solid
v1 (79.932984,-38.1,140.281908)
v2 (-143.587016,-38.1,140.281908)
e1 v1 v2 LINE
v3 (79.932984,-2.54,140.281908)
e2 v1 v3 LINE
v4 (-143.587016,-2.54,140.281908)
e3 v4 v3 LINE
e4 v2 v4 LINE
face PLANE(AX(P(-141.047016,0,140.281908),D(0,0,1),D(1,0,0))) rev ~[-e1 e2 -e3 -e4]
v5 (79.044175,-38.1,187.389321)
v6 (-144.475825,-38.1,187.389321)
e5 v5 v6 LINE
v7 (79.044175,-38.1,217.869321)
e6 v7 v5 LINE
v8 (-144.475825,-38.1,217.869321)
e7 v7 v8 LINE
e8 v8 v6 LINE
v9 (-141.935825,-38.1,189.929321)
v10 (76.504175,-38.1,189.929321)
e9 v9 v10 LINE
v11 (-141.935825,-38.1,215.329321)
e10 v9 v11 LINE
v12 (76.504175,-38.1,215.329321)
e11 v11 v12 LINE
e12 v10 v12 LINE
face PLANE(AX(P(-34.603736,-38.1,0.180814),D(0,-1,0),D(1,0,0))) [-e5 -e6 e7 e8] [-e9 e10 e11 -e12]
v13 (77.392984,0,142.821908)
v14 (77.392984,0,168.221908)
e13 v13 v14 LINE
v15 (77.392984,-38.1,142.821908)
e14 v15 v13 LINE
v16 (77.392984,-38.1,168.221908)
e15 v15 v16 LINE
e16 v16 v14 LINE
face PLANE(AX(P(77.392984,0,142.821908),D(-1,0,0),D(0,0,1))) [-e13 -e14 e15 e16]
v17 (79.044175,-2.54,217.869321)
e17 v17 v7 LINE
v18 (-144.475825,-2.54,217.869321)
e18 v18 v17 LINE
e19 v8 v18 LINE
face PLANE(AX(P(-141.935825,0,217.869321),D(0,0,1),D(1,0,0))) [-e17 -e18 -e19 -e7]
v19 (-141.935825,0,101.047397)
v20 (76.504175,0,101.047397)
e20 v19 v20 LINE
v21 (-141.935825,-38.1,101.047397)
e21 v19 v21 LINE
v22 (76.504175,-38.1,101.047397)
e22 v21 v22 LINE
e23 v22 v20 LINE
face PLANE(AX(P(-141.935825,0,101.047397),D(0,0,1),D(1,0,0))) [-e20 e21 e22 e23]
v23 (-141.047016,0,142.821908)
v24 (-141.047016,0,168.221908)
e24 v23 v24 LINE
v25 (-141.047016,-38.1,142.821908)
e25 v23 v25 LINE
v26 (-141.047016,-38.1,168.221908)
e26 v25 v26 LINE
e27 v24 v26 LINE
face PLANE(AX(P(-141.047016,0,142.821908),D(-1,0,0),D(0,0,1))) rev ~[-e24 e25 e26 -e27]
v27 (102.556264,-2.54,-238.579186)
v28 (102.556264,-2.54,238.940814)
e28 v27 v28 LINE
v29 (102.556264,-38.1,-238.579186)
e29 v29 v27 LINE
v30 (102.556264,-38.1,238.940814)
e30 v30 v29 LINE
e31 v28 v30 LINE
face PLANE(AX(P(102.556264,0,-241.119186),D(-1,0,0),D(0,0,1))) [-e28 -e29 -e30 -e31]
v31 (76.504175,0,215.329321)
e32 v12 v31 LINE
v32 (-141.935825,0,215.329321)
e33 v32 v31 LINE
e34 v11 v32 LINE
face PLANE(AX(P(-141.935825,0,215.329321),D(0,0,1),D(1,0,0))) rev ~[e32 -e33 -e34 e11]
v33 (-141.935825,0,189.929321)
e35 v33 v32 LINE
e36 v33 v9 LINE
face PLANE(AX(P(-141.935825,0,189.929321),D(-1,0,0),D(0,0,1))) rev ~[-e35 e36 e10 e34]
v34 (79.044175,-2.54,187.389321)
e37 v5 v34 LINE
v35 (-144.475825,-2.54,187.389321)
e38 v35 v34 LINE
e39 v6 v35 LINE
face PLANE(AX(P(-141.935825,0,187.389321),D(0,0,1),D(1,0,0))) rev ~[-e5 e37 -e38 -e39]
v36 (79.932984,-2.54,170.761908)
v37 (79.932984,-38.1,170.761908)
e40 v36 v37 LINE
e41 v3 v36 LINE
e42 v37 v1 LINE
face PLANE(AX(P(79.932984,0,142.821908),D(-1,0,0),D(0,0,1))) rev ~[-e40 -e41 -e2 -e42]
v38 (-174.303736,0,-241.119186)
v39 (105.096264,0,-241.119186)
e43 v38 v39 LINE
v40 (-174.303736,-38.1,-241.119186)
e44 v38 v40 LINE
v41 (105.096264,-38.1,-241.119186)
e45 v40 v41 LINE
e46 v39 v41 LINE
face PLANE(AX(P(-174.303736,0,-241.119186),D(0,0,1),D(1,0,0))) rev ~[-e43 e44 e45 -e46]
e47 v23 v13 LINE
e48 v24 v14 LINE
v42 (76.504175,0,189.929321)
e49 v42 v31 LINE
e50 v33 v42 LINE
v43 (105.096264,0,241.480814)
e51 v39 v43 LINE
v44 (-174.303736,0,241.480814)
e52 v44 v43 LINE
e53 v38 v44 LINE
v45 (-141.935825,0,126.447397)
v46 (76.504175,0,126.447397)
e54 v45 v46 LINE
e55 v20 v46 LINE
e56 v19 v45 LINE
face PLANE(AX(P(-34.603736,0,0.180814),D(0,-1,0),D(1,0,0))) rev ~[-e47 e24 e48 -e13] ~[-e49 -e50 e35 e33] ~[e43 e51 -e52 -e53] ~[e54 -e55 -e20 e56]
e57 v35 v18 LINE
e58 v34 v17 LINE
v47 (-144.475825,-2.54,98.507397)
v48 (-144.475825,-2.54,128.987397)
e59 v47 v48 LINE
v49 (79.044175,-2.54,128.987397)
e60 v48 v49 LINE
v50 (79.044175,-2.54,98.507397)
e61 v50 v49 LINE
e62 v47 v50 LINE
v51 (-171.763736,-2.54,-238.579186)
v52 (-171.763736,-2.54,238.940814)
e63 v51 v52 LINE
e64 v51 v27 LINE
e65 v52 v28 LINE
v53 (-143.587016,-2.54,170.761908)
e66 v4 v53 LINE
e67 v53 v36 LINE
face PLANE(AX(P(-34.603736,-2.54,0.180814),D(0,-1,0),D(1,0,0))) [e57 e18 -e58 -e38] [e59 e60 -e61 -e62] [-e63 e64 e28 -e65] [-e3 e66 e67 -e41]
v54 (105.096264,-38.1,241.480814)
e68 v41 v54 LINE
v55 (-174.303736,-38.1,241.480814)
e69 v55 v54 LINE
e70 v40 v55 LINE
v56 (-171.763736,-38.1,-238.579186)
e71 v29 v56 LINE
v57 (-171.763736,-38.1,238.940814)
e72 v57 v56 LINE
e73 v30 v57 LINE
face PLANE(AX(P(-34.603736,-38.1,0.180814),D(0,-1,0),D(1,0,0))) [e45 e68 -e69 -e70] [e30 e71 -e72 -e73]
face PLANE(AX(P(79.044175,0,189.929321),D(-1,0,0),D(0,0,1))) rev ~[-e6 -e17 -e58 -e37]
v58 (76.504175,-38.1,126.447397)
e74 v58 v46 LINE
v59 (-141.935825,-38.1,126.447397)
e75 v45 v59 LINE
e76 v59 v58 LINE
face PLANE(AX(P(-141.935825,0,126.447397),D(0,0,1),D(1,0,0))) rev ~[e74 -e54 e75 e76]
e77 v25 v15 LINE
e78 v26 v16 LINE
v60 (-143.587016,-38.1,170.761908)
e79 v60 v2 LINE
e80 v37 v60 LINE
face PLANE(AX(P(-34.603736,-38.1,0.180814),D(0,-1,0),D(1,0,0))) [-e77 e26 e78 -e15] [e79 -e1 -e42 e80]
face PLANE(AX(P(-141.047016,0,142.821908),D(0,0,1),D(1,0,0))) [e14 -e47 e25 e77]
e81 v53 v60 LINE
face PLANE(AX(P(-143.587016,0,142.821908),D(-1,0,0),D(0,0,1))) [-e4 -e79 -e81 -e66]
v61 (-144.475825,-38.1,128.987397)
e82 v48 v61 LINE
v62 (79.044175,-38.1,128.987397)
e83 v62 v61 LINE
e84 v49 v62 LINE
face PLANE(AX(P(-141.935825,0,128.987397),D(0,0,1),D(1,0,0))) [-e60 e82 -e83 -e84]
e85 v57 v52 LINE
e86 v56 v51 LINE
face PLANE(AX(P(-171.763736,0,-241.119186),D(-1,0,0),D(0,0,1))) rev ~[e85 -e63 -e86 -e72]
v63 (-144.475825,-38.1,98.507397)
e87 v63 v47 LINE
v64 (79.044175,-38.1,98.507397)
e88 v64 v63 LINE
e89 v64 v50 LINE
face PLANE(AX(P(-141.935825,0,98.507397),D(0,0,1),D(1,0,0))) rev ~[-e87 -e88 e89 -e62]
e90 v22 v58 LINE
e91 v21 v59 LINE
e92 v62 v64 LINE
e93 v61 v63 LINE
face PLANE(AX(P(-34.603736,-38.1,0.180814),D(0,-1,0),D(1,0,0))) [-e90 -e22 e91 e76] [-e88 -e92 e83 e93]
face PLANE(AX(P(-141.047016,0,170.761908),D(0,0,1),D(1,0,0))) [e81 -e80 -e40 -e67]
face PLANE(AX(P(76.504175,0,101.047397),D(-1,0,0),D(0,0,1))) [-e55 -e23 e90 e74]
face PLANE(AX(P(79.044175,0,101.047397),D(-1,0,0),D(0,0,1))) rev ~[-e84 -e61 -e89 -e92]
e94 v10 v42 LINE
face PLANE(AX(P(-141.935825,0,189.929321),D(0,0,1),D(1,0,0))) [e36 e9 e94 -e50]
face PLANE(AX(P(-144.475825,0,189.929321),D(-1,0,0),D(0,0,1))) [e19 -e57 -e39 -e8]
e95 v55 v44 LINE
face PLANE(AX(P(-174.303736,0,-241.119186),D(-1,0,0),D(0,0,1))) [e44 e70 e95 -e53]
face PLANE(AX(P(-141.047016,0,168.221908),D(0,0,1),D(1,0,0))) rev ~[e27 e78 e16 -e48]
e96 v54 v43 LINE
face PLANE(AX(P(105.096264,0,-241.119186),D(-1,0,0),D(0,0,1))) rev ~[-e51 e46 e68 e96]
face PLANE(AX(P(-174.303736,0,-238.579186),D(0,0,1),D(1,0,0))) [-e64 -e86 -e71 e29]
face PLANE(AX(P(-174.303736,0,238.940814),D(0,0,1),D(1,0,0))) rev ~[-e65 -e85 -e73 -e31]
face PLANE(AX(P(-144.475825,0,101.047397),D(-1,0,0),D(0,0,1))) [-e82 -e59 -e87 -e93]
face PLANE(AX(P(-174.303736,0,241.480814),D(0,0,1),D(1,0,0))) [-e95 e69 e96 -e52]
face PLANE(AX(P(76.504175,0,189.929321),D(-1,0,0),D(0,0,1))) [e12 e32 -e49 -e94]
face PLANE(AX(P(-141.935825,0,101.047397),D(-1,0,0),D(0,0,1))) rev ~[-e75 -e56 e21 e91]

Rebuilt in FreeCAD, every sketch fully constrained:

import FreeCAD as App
import Part
import Sketcher
Q = App.Units.Quantity


def faces_at(feature, points):
    """Names of the faces that lie closest to the given points."""
    faces = feature.Shape.Faces
    near = lambda p: min(range(len(faces)), key=lambda i: faces[i].distToShape(Part.Vertex(*p))[0])
    return sorted({f"Face{near(p) + 1}" for p in points})


def add_polygon(sketch, points):
    """Adds a closed chain of lines whose ends are joined by coincident constraints."""
    first, n = sketch.GeometryCount, len(points)
    for a, b in zip(points, points[1:] + points[:1]):
        sketch.addGeometry(Part.LineSegment(App.Vector(*a, 0), App.Vector(*b, 0)), False)
    for i in range(n):
        sketch.addConstraint(Sketcher.Constraint("Coincident", first + i, 2, first + (i + 1) % n, 1))

doc = App.newDocument("Part")
body = doc.addObject("PartDesign::Body", "Body")

sketch1 = body.newObject("Sketcher::SketchObject", "Sketch")
sketch1.AttachmentSupport = (doc.getObject("XZ_Plane"), [""])
sketch1.MapMode = "FlatFace"
add_polygon(sketch1, [(-174, 241), (-174, -241), (105, -241), (105, 241)])
add_polygon(sketch1, [(77, 101), (-142, 101), (-142, 126), (77, 126)])
add_polygon(sketch1, [(77, 143), (-141, 143), (-141, 168), (77, 168)])
add_polygon(sketch1, [(77, 190), (-142, 190), (-142, 215), (77, 215)])
sketch1.addConstraint(Sketcher.Constraint("Vertical", 0))
sketch1.addConstraint(Sketcher.Constraint("Horizontal", 1))
sketch1.addConstraint(Sketcher.Constraint("Vertical", 2))
sketch1.addConstraint(Sketcher.Constraint("Horizontal", 3))
sketch1.addConstraint(Sketcher.Constraint("Horizontal", 4))
sketch1.addConstraint(Sketcher.Constraint("Vertical", 5))
sketch1.addConstraint(Sketcher.Constraint("Horizontal", 6))
sketch1.addConstraint(Sketcher.Constraint("Vertical", 7))
sketch1.addConstraint(Sketcher.Constraint("Horizontal", 8))
sketch1.addConstraint(Sketcher.Constraint("Vertical", 9))
sketch1.addConstraint(Sketcher.Constraint("Horizontal", 10))
sketch1.addConstraint(Sketcher.Constraint("Vertical", 11))
sketch1.addConstraint(Sketcher.Constraint("Horizontal", 12))
sketch1.addConstraint(Sketcher.Constraint("Vertical", 13))
sketch1.addConstraint(Sketcher.Constraint("Horizontal", 14))
sketch1.addConstraint(Sketcher.Constraint("Vertical", 15))
sketch1.addConstraint(Sketcher.Constraint("Vertical", 5, 2, 12, 2))
sketch1.addConstraint(Sketcher.Constraint("Vertical", 7, 2, 14, 2))
sketch1.addConstraint(Sketcher.Constraint("Equal", 6, 8))
sketch1.addConstraint(Sketcher.Constraint("Equal", 7, 9))
sketch1.addConstraint(Sketcher.Constraint("Equal", 11, 13))
sketch1.addConstraint(Sketcher.Constraint("DistanceX", 1, 1, 1, 2, Q("11 in")))
sketch1.addConstraint(Sketcher.Constraint("DistanceY", 0, 2, 0, 1, Q("19 in")))
sketch1.addConstraint(Sketcher.Constraint("DistanceY", 5, 1, 5, 2, Q("1 in")))
sketch1.addConstraint(Sketcher.Constraint("DistanceX", 4, 2, 4, 1, Q("8.6 in")))
sketch1.addConstraint(Sketcher.Constraint("DistanceY", -1, 1, 12, 2, 189.929321))
sketch1.addConstraint(Sketcher.Constraint("DistanceX", 3, 2, 4, 2, 32.367911))
sketch1.addConstraint(Sketcher.Constraint("DistanceX", 5, 2, 8, 2, 0.88881))
sketch1.addConstraint(Sketcher.Constraint("DistanceY", 5, 2, 8, 2, 16.374511))
sketch1.addConstraint(Sketcher.Constraint("DistanceX", 0, 2, -1, 1, 174.303736))
sketch1.addConstraint(Sketcher.Constraint("DistanceY", 0, 2, -1, 1, 241.119186))
sketch1.addConstraint(Sketcher.Constraint("DistanceY", -1, 1, 4, 2, 101.047397))
pad1 = body.newObject("PartDesign::Pad", "Pad")
pad1.Profile = sketch1
pad1.Length = Q("1.5 in")

sketch2 = body.newObject("Sketcher::SketchObject", "Sketch001")
sketch2.AttachmentSupport = (doc.getObject("XZ_Plane"), [""])
sketch2.MapMode = "FlatFace"
add_polygon(sketch2, [(-174, 241), (-174, -241), (105, -241), (105, 241)])
add_polygon(sketch2, [(77, 101), (-142, 101), (-142, 126), (77, 126)])
add_polygon(sketch2, [(77, 143), (-141, 143), (-141, 168), (77, 168)])
add_polygon(sketch2, [(77, 190), (-142, 190), (-142, 215), (77, 215)])
sketch2.addConstraint(Sketcher.Constraint("Vertical", 0))
sketch2.addConstraint(Sketcher.Constraint("Horizontal", 1))
sketch2.addConstraint(Sketcher.Constraint("Vertical", 2))
sketch2.addConstraint(Sketcher.Constraint("Horizontal", 3))
sketch2.addConstraint(Sketcher.Constraint("Horizontal", 4))
sketch2.addConstraint(Sketcher.Constraint("Vertical", 5))
sketch2.addConstraint(Sketcher.Constraint("Horizontal", 6))
sketch2.addConstraint(Sketcher.Constraint("Vertical", 7))
sketch2.addConstraint(Sketcher.Constraint("Horizontal", 8))
sketch2.addConstraint(Sketcher.Constraint("Vertical", 9))
sketch2.addConstraint(Sketcher.Constraint("Horizontal", 10))
sketch2.addConstraint(Sketcher.Constraint("Vertical", 11))
sketch2.addConstraint(Sketcher.Constraint("Horizontal", 12))
sketch2.addConstraint(Sketcher.Constraint("Vertical", 13))
sketch2.addConstraint(Sketcher.Constraint("Horizontal", 14))
sketch2.addConstraint(Sketcher.Constraint("Vertical", 15))
sketch2.addConstraint(Sketcher.Constraint("Vertical", 5, 2, 12, 2))
sketch2.addConstraint(Sketcher.Constraint("Vertical", 7, 2, 14, 2))
sketch2.addConstraint(Sketcher.Constraint("Equal", 6, 8))
sketch2.addConstraint(Sketcher.Constraint("Equal", 7, 9))
sketch2.addConstraint(Sketcher.Constraint("Equal", 11, 13))
sketch2.addConstraint(Sketcher.Constraint("DistanceX", 1, 1, 1, 2, Q("11 in")))
sketch2.addConstraint(Sketcher.Constraint("DistanceY", 0, 2, 0, 1, Q("19 in")))
sketch2.addConstraint(Sketcher.Constraint("DistanceY", 5, 1, 5, 2, Q("1 in")))
sketch2.addConstraint(Sketcher.Constraint("DistanceX", 4, 2, 4, 1, Q("8.6 in")))
sketch2.addConstraint(Sketcher.Constraint("DistanceY", -1, 1, 12, 2, 189.929321))
sketch2.addConstraint(Sketcher.Constraint("DistanceX", 3, 2, 4, 2, 32.367911))
sketch2.addConstraint(Sketcher.Constraint("DistanceX", 5, 2, 8, 2, 0.88881))
sketch2.addConstraint(Sketcher.Constraint("DistanceY", 5, 2, 8, 2, 16.374511))
sketch2.addConstraint(Sketcher.Constraint("DistanceX", 0, 2, -1, 1, 174.303736))
sketch2.addConstraint(Sketcher.Constraint("DistanceY", 0, 2, -1, 1, 241.119186))
sketch2.addConstraint(Sketcher.Constraint("DistanceY", -1, 1, 4, 2, 101.047397))
pad2 = body.newObject("PartDesign::Pad", "Pad001")
pad2.Profile = sketch2
pad2.Length = Q("1 in")
doc.recompute()

thickness = body.newObject("PartDesign::Thickness", "Thickness")
thickness.Base = (pad2, faces_at(pad2, [(-34.604, -38.1, 0.181)]))
thickness.Value = Q("0.1 in")
thickness.Reversed = True
thickness.Join = "Intersection"

doc.recompute()
